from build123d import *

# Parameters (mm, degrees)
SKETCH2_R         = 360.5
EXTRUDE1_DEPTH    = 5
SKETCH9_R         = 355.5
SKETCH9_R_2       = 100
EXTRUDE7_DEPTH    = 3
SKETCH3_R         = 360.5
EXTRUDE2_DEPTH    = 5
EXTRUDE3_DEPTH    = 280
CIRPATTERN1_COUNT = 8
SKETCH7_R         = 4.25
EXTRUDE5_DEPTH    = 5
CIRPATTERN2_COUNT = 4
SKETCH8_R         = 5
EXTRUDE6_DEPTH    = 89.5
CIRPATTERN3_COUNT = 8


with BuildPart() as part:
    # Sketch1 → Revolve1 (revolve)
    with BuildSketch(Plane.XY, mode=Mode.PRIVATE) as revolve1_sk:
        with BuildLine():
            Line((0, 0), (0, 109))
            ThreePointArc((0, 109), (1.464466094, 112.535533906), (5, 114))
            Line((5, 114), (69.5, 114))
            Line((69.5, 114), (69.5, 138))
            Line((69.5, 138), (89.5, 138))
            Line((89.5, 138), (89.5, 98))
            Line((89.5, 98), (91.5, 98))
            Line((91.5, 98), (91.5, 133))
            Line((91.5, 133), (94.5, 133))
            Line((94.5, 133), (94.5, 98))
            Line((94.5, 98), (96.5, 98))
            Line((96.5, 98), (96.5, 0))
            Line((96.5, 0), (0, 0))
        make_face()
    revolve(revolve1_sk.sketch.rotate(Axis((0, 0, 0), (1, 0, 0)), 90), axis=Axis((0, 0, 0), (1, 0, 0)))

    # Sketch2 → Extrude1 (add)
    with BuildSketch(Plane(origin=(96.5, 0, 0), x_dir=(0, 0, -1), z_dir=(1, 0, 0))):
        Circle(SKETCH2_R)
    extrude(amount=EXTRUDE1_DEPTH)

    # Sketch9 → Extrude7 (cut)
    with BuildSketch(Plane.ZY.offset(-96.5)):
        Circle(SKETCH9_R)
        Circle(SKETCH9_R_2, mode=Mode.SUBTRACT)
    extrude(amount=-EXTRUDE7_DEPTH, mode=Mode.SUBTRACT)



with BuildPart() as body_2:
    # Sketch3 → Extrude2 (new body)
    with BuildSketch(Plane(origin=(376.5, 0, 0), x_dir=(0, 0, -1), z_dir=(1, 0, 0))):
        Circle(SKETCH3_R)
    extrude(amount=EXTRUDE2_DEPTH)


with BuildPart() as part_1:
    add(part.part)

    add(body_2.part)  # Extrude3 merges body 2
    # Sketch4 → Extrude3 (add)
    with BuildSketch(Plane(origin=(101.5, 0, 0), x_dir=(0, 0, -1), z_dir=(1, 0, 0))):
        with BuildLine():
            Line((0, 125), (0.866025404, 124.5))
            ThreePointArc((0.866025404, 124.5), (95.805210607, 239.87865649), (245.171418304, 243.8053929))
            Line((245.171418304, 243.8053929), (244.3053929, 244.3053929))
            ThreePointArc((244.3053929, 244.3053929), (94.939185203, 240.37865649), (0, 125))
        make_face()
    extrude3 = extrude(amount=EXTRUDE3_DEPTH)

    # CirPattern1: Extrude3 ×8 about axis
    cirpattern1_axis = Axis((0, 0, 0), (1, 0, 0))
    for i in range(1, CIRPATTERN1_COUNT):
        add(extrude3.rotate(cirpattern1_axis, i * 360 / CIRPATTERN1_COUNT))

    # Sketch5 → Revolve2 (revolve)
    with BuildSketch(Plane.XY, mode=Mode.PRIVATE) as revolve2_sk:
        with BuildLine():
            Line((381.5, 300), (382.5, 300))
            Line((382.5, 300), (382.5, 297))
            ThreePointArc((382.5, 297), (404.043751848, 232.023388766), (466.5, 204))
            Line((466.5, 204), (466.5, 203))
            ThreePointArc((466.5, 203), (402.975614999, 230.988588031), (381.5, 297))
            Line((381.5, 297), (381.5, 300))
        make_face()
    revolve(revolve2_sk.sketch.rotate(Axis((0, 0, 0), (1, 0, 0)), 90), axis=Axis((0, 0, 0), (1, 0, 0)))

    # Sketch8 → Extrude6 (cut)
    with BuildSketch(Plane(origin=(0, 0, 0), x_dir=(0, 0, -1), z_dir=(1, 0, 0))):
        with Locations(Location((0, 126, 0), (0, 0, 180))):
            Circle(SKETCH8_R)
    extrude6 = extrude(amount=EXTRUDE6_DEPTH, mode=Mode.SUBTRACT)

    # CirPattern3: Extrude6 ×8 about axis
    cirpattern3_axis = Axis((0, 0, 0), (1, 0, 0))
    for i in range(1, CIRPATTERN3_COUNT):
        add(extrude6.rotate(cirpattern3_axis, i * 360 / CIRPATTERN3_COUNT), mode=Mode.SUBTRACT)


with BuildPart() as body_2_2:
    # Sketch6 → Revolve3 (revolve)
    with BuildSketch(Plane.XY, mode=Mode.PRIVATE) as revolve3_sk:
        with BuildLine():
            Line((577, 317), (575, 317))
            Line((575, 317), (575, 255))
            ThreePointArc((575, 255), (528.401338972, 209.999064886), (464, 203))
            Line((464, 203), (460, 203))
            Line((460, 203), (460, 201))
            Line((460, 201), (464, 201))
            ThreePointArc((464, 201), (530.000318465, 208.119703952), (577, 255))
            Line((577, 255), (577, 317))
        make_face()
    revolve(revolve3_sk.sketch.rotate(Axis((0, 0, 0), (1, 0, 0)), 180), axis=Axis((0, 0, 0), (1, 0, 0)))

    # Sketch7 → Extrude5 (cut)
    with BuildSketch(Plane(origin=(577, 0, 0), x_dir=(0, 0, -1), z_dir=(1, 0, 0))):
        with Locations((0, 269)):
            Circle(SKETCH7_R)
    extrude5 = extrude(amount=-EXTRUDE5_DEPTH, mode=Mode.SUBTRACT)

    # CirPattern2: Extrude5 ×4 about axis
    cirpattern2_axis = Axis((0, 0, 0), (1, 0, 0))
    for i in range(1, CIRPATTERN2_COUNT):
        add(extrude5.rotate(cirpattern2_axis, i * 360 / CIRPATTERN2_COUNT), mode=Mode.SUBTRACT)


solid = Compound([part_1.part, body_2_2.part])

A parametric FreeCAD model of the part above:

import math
import FreeCAD as App
import Part
import Sketcher
Q = App.Units.Quantity

doc = App.newDocument("Part")
body = doc.addObject("PartDesign::Body", "Body")

# Sketch on XY plane
sketch1 = body.newObject("Sketcher::SketchObject", "Sketch")
sketch1.AttachmentSupport = (doc.getObject("XY_Plane"), [""])
sketch1.MapMode = "FlatFace"
sketch1.addGeometry([
    Part.LineSegment(App.Vector(0, 109, 0), App.Vector(0, 0, 0)),  # 0
    Part.LineSegment(App.Vector(0, 0, 0), App.Vector(96.5, 0, 0)),  # 1
    Part.LineSegment(App.Vector(96.5, 0, 0), App.Vector(96.5, 98, 0)),  # 2
    Part.LineSegment(App.Vector(96.5, 98, 0), App.Vector(94.5, 98, 0)),  # 3
    Part.LineSegment(App.Vector(94.5, 98, 0), App.Vector(94.5, 133, 0)),  # 4
    Part.LineSegment(App.Vector(94.5, 133, 0), App.Vector(91.5, 133, 0)),  # 5
    Part.LineSegment(App.Vector(91.5, 133, 0), App.Vector(91.5, 98, 0)),  # 6
    Part.LineSegment(App.Vector(91.5, 98, 0), App.Vector(89.5, 98, 0)),  # 7
    Part.LineSegment(App.Vector(89.5, 98, 0), App.Vector(89.5, 138, 0)),  # 8
    Part.LineSegment(App.Vector(89.5, 138, 0), App.Vector(69.5, 138, 0)),  # 9
    Part.LineSegment(App.Vector(69.5, 138, 0), App.Vector(69.5, 114, 0)),  # 10
    Part.LineSegment(App.Vector(69.5, 114, 0), App.Vector(5, 114, 0)),  # 11
    Part.ArcOfCircle(Part.Circle(App.Vector(5, 109, 0), App.Vector(0, 0, 1), 5), math.radians(90), math.radians(180)),  # 12
], False)
sketch1.addConstraint([
    Sketcher.Constraint("Coincident", 0, 2, 1, 1),
    Sketcher.Constraint("Coincident", 1, 2, 2, 1),
    Sketcher.Constraint("Coincident", 2, 2, 3, 1),
    Sketcher.Constraint("Coincident", 3, 2, 4, 1),
    Sketcher.Constraint("Coincident", 4, 2, 5, 1),
    Sketcher.Constraint("Coincident", 5, 2, 6, 1),
    Sketcher.Constraint("Coincident", 6, 2, 7, 1),
    Sketcher.Constraint("Coincident", 7, 2, 8, 1),
    Sketcher.Constraint("Coincident", 8, 2, 9, 1),
    Sketcher.Constraint("Coincident", 9, 2, 10, 1),
    Sketcher.Constraint("Coincident", 10, 2, 11, 1),
    Sketcher.Constraint("Tangent", 11, 2, 12, 1),
    Sketcher.Constraint("Tangent", 12, 2, 0, 1),
    Sketcher.Constraint("Vertical", 0),
    Sketcher.Constraint("Horizontal", 1),
    Sketcher.Constraint("Vertical", 2),
    Sketcher.Constraint("Horizontal", 3),
    Sketcher.Constraint("Vertical", 4),
    Sketcher.Constraint("Horizontal", 5),
    Sketcher.Constraint("Vertical", 6),
    Sketcher.Constraint("Horizontal", 7),
    Sketcher.Constraint("Vertical", 8),
    Sketcher.Constraint("Horizontal", 9),
    Sketcher.Constraint("Vertical", 10),
    Sketcher.Constraint("Horizontal", 11),
    Sketcher.Constraint("Coincident", 0, 2, -1, 1),
    Sketcher.Constraint("Horizontal", 3, 2, 6, 2),
    Sketcher.Constraint("Equal", 3, 7),
    Sketcher.Constraint("Radius", 12, 5.0),
    Sketcher.Constraint("DistanceX", 3, 2, 3, 1, 2.0),
    Sketcher.Constraint("DistanceX", 5, 2, 5, 1, 3.0),
    Sketcher.Constraint("DistanceX", 9, 2, 9, 1, 20.0),
    Sketcher.Constraint("DistanceY", 0, 2, 0, 1, 109.0),
    Sketcher.Constraint("DistanceY", 2, 1, 2, 2, 98.0),
    Sketcher.Constraint("DistanceY", 4, 1, 4, 2, 35.0),
    Sketcher.Constraint("DistanceY", 8, 1, 8, 2, 40.0),
    Sketcher.Constraint("DistanceX", 1, 1, 1, 2, 96.5),
])
revolution = body.newObject("PartDesign::Revolution", "Revolution")
revolution.Profile = sketch1
revolution.ReferenceAxis = (sketch1, ["H_Axis"])
revolution.Angle = 360

# Sketch on YZ plane
sketch2 = body.newObject("Sketcher::SketchObject", "Sketch001")
sketch2.AttachmentSupport = (doc.getObject("YZ_Plane"), [""])
sketch2.MapMode = "FlatFace"
sketch2.AttachmentOffset = App.Placement(App.Vector(0, 0, 96.5), App.Rotation())
sketch2.addGeometry(Part.Circle(App.Vector(0, 0, 0), App.Vector(0, 0, 1), 360.5), False)
sketch2.addConstraint([
    Sketcher.Constraint("Coincident", 0, 3, -1, 1),
    Sketcher.Constraint("Diameter", 0, 721.0),
])
pad1 = body.newObject("PartDesign::Pad", "Pad")
pad1.Profile = sketch2
pad1.Length = 5

# Sketch on YZ plane
sketch3 = body.newObject("Sketcher::SketchObject", "Sketch002")
sketch3.AttachmentSupport = (doc.getObject("YZ_Plane"), [""])
sketch3.MapMode = "FlatFace"
sketch3.AttachmentOffset = App.Placement(App.Vector(0, 0, 96.5), App.Rotation())
sketch3.addGeometry([
    Part.Circle(App.Vector(0, 0, 0), App.Vector(0, 0, 1), 355.5),
    Part.Circle(App.Vector(0, 0, 0), App.Vector(0, 0, 1), 100),
], False)
sketch3.addConstraint([
    Sketcher.Constraint("Coincident", 0, 3, -1, 1),
    Sketcher.Constraint("Coincident", 1, 3, -1, 1),
    Sketcher.Constraint("Diameter", 0, 711.0),
    Sketcher.Constraint("Diameter", 1, 200.0),
])
pocket1 = body.newObject("PartDesign::Pocket", "Pocket")
pocket1.Profile = sketch3
pocket1.Length = 3
pocket1.Reversed = True
body2 = doc.addObject("PartDesign::Body", "Body001")

# Sketch on YZ plane
sketch4 = body2.newObject("Sketcher::SketchObject", "Sketch003")
sketch4.AttachmentSupport = (doc.getObject("YZ_Plane001"), [""])
sketch4.MapMode = "FlatFace"
sketch4.AttachmentOffset = App.Placement(App.Vector(0, 0, 376.5), App.Rotation())
sketch4.addGeometry(Part.Circle(App.Vector(0, 0, 0), App.Vector(0, 0, 1), 360.5), False)
sketch4.addConstraint([
    Sketcher.Constraint("Coincident", 0, 3, -1, 1),
    Sketcher.Constraint("Diameter", 0, 721.0),
])
pad2 = body2.newObject("PartDesign::Pad", "Pad001")
pad2.Profile = sketch4
pad2.Length = 5
body.AllowCompound = True
doc.recompute()

boolean = body.newObject("PartDesign::Boolean", "Boolean")
boolean.Type = "Fuse"
boolean.addObjects([body2])

# Sketch on YZ plane
sketch5 = body.newObject("Sketcher::SketchObject", "Sketch004")
sketch5.AttachmentSupport = (doc.getObject("YZ_Plane"), [""])
sketch5.MapMode = "FlatFace"
sketch5.AttachmentOffset = App.Placement(App.Vector(0, 0, 101.5), App.Rotation())
sketch5.addGeometry([
    Part.LineSegment(App.Vector(125, 0, 0), App.Vector(124.5, -0.866025, 0)),
    Part.ArcOfCircle(Part.Circle(App.Vector(78.134795, -174.792067, 0), App.Vector(0, 0, 1), 180), math.radians(-23.016512), math.radians(75.073219)),
    Part.LineSegment(App.Vector(243.805393, -245.171418, 0), App.Vector(244.305393, -244.305393, 0)),
    Part.ArcOfCircle(Part.Circle(App.Vector(78.634795, -173.926041, 0), App.Vector(0, 0, 1), 180), math.radians(-23.016512), math.radians(75.073219)),
], False)
sketch5.addConstraint([
    Sketcher.Constraint("Coincident", 0, 2, 1, 2),
    Sketcher.Constraint("Coincident", 1, 1, 2, 1),
    Sketcher.Constraint("Coincident", 2, 2, 3, 1),
    Sketcher.Constraint("Coincident", 3, 2, 0, 1),
    Sketcher.Constraint("Equal", 1, 3),
    Sketcher.Constraint("PointOnObject", 3, 2, -1),
    Sketcher.Constraint("Parallel", 0, 2),
    Sketcher.Constraint("Equal", 0, 2),
    Sketcher.Constraint("Radius", 1, 180.0),
    Sketcher.Constraint("Angle", 0, Q("-120 deg")),
    Sketcher.Constraint("Distance", 0, 1.0),
    Sketcher.Constraint("DistanceX", -1, 1, 3, 2, 125.0),
    Sketcher.Constraint("DistanceY", 3, 3, -1, 1, 173.926041),
    Sketcher.Constraint("DistanceY", 1, 1, -1, 1, 245.171418),
])
pad3 = body.newObject("PartDesign::Pad", "Pad002")
pad3.Profile = sketch5
pad3.Length = 280
doc.recompute()

polarpattern = body.newObject("PartDesign::PolarPattern", "PolarPattern")
polarpattern.Originals = [pad3]
polarpattern.Axis = (doc.getObject("X_Axis"), [""])
polarpattern.Angle = 360
polarpattern.Occurrences = 8
body.Tip = polarpattern

# Sketch on XY plane
sketch6 = body.newObject("Sketcher::SketchObject", "Sketch005")
sketch6.AttachmentSupport = (doc.getObject("XY_Plane"), [""])
sketch6.MapMode = "FlatFace"
sketch6.addGeometry([
    Part.LineSegment(App.Vector(382.5, 300, 0), App.Vector(381.5, 300, 0)),  # 0
    Part.LineSegment(App.Vector(381.5, 300, 0), App.Vector(381.5, 297, 0)),  # 1
    Part.ArcOfCircle(Part.Circle(App.Vector(466.022043, 287.998656, 0), App.Vector(0, 0, 1), 85), math.radians(173.921084), math.radians(270.322177)),  # 2
    Part.LineSegment(App.Vector(466.5, 203, 0), App.Vector(466.5, 204, 0)),  # 3
    Part.ArcOfCircle(Part.Circle(App.Vector(467.122476, 288.997721, 0), App.Vector(0, 0, 1), 85), math.radians(174.59792), math.radians(269.580405)),  # 4
    Part.LineSegment(App.Vector(382.5, 297, 0), App.Vector(382.5, 300, 0)),  # 5
], False)
sketch6.addConstraint([
    Sketcher.Constraint("Coincident", 0, 2, 1, 1),
    Sketcher.Constraint("Coincident", 1, 2, 2, 1),
    Sketcher.Constraint("Coincident", 2, 2, 3, 1),
    Sketcher.Constraint("Coincident", 3, 2, 4, 2),
    Sketcher.Constraint("Coincident", 4, 1, 5, 1),
    Sketcher.Constraint("Coincident", 5, 2, 0, 1),
    Sketcher.Constraint("Horizontal", 0),
    Sketcher.Constraint("Vertical", 1),
    Sketcher.Constraint("Vertical", 3),
    Sketcher.Constraint("Vertical", 5),
    Sketcher.Constraint("Equal", 2, 4),
    Sketcher.Constraint("Horizontal", 1, 2, 4, 1),
    Sketcher.Constraint("Equal", 0, 3),
    Sketcher.Constraint("Radius", 2, 85.0),
    Sketcher.Constraint("DistanceX", 0, 2, 0, 1, 1.0),
    Sketcher.Constraint("DistanceY", 1, 2, 1, 1, 3.0),
    Sketcher.Constraint("DistanceY", -1, 1, 0, 2, 300.0),
    Sketcher.Constraint("DistanceY", -1, 1, 2, 2, 203.0),
    Sketcher.Constraint("DistanceX", 1, 2, 2, 2, 85.0),
    Sketcher.Constraint("DistanceX", -1, 1, 0, 2, 381.5),
])
revolution2 = body.newObject("PartDesign::Revolution", "Revolution001")
revolution2.Profile = sketch6
revolution2.ReferenceAxis = (sketch6, ["H_Axis"])
revolution2.Angle = 360

# Sketch on YZ plane
sketch7 = body.newObject("Sketcher::SketchObject", "Sketch006")
sketch7.AttachmentSupport = (doc.getObject("YZ_Plane"), [""])
sketch7.MapMode = "FlatFace"
sketch7.addGeometry(Part.Circle(App.Vector(126, 0, 0), App.Vector(0, 0, 1), 5), False)
sketch7.addConstraint([
    Sketcher.Constraint("PointOnObject", 0, 3, -1),
    Sketcher.Constraint("Diameter", 0, 10.0),
    Sketcher.Constraint("DistanceX", -1, 1, 0, 3, 126.0),
])
pocket2 = body.newObject("PartDesign::Pocket", "Pocket001")
pocket2.Profile = sketch7
pocket2.Length = 89.5
pocket2.Reversed = True
doc.recompute()

polarpattern2 = body.newObject("PartDesign::PolarPattern", "PolarPattern001")
polarpattern2.Originals = [pocket2]
polarpattern2.Axis = (doc.getObject("X_Axis"), [""])
polarpattern2.Angle = 360
polarpattern2.Occurrences = 8
body.Tip = polarpattern2
body3 = doc.addObject("PartDesign::Body", "Body002")

# Sketch on XY plane
sketch8 = body3.newObject("Sketcher::SketchObject", "Sketch007")
sketch8.AttachmentSupport = (doc.getObject("XY_Plane002"), [""])
sketch8.MapMode = "FlatFace"
sketch8.addGeometry([
    Part.LineSegment(App.Vector(577, 317, 0), App.Vector(575, 317, 0)),  # 0
    Part.LineSegment(App.Vector(575, 317, 0), App.Vector(575, 255, 0)),  # 1
    Part.ArcOfCircle(Part.Circle(App.Vector(485.978854, 300.554754, 0), App.Vector(0, 0, 1), 100), math.radians(-102.696613), math.radians(-27.100169)),  # 2
    Part.LineSegment(App.Vector(464, 203, 0), App.Vector(460, 203, 0)),  # 3
    Part.LineSegment(App.Vector(460, 203, 0), App.Vector(460, 201, 0)),  # 4
    Part.LineSegment(App.Vector(460, 201, 0), App.Vector(464, 201, 0)),  # 5
    Part.ArcOfCircle(Part.Circle(App.Vector(486.883024, 298.346634, 0), App.Vector(0, 0, 1), 100), math.radians(-103.228213), math.radians(-25.687745)),  # 6
    Part.LineSegment(App.Vector(577, 255, 0), App.Vector(577, 317, 0)),  # 7
], False)
sketch8.addConstraint([
    Sketcher.Constraint("Coincident", 0, 2, 1, 1),
    Sketcher.Constraint("Coincident", 1, 2, 2, 2),
    Sketcher.Constraint("Coincident", 2, 1, 3, 1),
    Sketcher.Constraint("Coincident", 3, 2, 4, 1),
    Sketcher.Constraint("Coincident", 4, 2, 5, 1),
    Sketcher.Constraint("Coincident", 5, 2, 6, 1),
    Sketcher.Constraint("Coincident", 6, 2, 7, 1),
    Sketcher.Constraint("Coincident", 7, 2, 0, 1),
    Sketcher.Constraint("Horizontal", 0),
    Sketcher.Constraint("Vertical", 1),
    Sketcher.Constraint("Horizontal", 3),
    Sketcher.Constraint("Vertical", 4),
    Sketcher.Constraint("Horizontal", 5),
    Sketcher.Constraint("Vertical", 7),
    Sketcher.Constraint("Equal", 2, 6),
    Sketcher.Constraint("Horizontal", 1, 2, 6, 2),
    Sketcher.Constraint("Vertical", 2, 1, 5, 2),
    Sketcher.Constraint("Equal", 0, 4),
    Sketcher.Constraint("Radius", 2, 100.0),
    Sketcher.Constraint("DistanceX", 0, 2, 0, 1, 2.0),
    Sketcher.Constraint("DistanceX", 3, 2, 3, 1, 4.0),
    Sketcher.Constraint("DistanceY", 1, 2, 1, 1, 62.0),
    Sketcher.Constraint("DistanceX", -1, 1, 0, 2, 575.0),
    Sketcher.Constraint("DistanceY", -1, 1, 0, 2, 317.0),
    Sketcher.Constraint("DistanceX", -1, 1, 2, 1, 464.0),
    Sketcher.Constraint("DistanceY", -1, 1, 2, 1, 203.0),
])
revolution3 = body3.newObject("PartDesign::Revolution", "Revolution002")
revolution3.Profile = sketch8
revolution3.ReferenceAxis = (sketch8, ["H_Axis"])
revolution3.Angle = 360

# Sketch on YZ plane
sketch9 = body3.newObject("Sketcher::SketchObject", "Sketch008")
sketch9.AttachmentSupport = (doc.getObject("YZ_Plane002"), [""])
sketch9.MapMode = "FlatFace"
sketch9.AttachmentOffset = App.Placement(App.Vector(0, 0, 577), App.Rotation())
sketch9.addGeometry(Part.Circle(App.Vector(269, 0, 0), App.Vector(0, 0, 1), 4.25), False)
sketch9.addConstraint([
    Sketcher.Constraint("PointOnObject", 0, 3, -1),
    Sketcher.Constraint("Diameter", 0, 8.5),
    Sketcher.Constraint("DistanceX", -1, 1, 0, 3, 269.0),
])
pocket3 = body3.newObject("PartDesign::Pocket", "Pocket002")
pocket3.Profile = sketch9
pocket3.Length = 5
doc.recompute()

polarpattern3 = body3.newObject("PartDesign::PolarPattern", "PolarPattern002")
polarpattern3.Originals = [pocket3]
polarpattern3.Axis = (doc.getObject("X_Axis002"), [""])
polarpattern3.Angle = 360
polarpattern3.Occurrences = 4
body3.Tip = polarpattern3

doc.recompute()
